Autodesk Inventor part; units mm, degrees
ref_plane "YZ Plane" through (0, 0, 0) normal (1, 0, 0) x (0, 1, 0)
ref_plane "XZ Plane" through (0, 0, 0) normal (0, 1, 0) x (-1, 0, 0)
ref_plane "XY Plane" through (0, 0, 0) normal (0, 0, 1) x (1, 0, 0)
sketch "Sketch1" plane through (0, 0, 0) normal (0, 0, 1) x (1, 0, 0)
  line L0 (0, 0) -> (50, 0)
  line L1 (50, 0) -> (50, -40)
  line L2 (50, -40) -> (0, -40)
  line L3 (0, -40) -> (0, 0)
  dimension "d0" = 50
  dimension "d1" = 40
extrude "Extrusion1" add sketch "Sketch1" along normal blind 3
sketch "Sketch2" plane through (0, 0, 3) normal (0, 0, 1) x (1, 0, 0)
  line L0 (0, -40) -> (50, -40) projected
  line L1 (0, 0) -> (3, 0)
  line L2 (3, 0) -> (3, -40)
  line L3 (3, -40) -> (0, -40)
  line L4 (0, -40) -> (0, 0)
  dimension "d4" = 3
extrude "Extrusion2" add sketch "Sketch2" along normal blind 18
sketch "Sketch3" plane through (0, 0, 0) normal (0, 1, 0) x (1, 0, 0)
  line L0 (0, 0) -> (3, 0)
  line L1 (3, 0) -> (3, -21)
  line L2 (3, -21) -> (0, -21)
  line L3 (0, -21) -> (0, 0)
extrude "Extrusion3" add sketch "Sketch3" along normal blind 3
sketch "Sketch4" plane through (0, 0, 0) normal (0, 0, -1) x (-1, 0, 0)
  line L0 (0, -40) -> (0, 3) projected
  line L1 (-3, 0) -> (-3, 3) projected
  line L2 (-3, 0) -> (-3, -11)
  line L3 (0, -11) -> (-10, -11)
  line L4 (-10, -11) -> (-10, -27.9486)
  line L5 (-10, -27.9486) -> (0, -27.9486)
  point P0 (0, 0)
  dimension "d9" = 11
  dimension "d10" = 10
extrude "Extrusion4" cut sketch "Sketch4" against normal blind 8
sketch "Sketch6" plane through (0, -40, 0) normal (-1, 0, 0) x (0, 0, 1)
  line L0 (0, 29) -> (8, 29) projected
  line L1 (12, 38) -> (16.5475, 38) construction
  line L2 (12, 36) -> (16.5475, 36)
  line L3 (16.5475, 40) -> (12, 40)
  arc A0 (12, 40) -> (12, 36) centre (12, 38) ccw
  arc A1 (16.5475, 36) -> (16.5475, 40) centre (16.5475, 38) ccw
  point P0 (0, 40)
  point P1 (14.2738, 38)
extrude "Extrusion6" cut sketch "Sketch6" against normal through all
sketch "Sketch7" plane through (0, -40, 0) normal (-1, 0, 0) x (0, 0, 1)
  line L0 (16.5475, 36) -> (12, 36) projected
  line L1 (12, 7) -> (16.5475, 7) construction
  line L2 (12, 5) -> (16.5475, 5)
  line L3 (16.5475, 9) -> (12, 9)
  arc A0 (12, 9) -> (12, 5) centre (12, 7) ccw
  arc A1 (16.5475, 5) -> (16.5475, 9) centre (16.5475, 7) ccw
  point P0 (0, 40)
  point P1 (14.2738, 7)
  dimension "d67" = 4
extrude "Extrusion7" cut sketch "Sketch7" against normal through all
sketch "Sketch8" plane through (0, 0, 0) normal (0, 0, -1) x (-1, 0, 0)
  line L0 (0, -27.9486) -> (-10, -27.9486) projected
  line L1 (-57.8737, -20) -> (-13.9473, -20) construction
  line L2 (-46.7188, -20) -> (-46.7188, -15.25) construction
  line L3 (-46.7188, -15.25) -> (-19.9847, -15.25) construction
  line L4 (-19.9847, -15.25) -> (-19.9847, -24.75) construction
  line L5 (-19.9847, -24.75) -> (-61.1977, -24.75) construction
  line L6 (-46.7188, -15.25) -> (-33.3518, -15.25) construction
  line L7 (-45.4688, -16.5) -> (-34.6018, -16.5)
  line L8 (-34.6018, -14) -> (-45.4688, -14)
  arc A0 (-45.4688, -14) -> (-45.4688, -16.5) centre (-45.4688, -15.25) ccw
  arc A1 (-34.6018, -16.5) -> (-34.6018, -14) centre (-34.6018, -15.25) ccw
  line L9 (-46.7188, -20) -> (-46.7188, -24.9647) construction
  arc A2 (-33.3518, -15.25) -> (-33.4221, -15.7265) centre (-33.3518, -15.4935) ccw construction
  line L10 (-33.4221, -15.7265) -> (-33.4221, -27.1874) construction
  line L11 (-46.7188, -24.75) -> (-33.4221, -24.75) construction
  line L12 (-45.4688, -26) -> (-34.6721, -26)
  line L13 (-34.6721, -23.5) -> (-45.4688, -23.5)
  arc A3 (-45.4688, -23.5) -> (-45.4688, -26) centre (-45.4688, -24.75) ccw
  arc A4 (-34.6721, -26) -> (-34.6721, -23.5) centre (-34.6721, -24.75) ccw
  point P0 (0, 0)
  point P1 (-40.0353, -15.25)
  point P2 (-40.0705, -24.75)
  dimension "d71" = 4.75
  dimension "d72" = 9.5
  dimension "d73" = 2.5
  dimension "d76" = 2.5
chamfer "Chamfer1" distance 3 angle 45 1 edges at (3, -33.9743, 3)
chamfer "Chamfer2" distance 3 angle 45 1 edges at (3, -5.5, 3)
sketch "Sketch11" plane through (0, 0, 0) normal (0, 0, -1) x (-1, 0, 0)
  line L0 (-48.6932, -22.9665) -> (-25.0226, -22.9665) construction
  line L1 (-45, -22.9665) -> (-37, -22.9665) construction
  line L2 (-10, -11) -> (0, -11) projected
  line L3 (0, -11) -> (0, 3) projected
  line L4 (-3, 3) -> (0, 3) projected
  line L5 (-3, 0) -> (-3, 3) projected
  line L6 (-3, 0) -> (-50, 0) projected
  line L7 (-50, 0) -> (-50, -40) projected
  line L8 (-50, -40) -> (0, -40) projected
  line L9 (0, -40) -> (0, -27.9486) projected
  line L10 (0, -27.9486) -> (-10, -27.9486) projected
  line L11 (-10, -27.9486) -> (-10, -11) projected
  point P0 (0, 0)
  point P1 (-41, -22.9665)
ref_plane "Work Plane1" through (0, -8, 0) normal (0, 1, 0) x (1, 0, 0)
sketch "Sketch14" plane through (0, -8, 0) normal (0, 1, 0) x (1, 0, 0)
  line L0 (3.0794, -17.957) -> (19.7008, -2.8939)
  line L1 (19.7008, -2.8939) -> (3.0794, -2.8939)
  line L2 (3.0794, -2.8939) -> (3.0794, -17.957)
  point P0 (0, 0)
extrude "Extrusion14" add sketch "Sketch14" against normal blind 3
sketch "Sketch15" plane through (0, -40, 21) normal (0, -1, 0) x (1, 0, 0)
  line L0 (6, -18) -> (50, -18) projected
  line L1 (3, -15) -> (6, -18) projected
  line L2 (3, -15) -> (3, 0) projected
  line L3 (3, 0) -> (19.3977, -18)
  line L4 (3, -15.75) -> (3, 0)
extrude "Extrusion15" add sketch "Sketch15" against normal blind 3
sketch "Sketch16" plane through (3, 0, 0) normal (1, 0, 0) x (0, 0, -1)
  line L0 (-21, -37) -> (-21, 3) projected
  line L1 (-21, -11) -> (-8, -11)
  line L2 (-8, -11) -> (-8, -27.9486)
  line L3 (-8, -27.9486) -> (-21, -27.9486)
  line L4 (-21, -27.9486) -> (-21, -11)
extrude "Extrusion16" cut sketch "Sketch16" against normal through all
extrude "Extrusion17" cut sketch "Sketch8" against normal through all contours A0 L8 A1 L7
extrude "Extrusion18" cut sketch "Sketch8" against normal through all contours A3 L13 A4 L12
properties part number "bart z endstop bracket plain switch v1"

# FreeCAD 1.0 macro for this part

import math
import FreeCAD as App
import Part
import Sketcher
from FreeCAD import Vector
Q = App.Units.Quantity


def edges_at(feature, points):
    """Names of the edges that pass closest to the given points."""
    edges = feature.Shape.Edges
    near = lambda p: min(range(len(edges)), key=lambda i: edges[i].distToShape(Part.Vertex(*p))[0])
    return sorted({f"Edge{near(p) + 1}" for p in points})


def add_polygon(sketch, points):
    """Adds a closed chain of lines whose ends are joined by coincident constraints."""
    first, n = sketch.GeometryCount, len(points)
    for a, b in zip(points, points[1:] + points[:1]):
        sketch.addGeometry(Part.LineSegment(App.Vector(*a, 0), App.Vector(*b, 0)), False)
    for i in range(n):
        sketch.addConstraint(Sketcher.Constraint("Coincident", first + i, 2, first + (i + 1) % n, 1))

doc = App.newDocument("Part")
body = doc.addObject("PartDesign::Body", "Body")

sketch1 = body.newObject("Sketcher::SketchObject", "Sketch")
sketch1.AttachmentSupport = (doc.getObject("XY_Plane"), [""])
sketch1.MapMode = "FlatFace"
add_polygon(sketch1, [(50, 0), (0, 0), (0, -40), (50, -40)])
sketch1.addConstraint([
    Sketcher.Constraint("Horizontal", 0),
    Sketcher.Constraint("Vertical", 1),
    Sketcher.Constraint("Horizontal", 2),
    Sketcher.Constraint("Vertical", 3),
    Sketcher.Constraint("Coincident", 0, 2, -1, 1),
    Sketcher.Constraint("DistanceX", 0, 2, 0, 1, 50.0),
    Sketcher.Constraint("DistanceY", 1, 2, 1, 1, 40.0),
])
pad1 = body.newObject("PartDesign::Pad", "Pad")
pad1.Profile = sketch1
pad1.Length = 3

sketch2 = body.newObject("Sketcher::SketchObject", "Sketch001")
sketch2.AttachmentSupport = (doc.getObject("XY_Plane"), [""])
sketch2.MapMode = "FlatFace"
sketch2.AttachmentOffset = App.Placement(Vector(0, 0, 3), App.Rotation())
add_polygon(sketch2, [(0, 0), (0, -40), (3, -40), (3, 0)])
sketch2.addConstraint([
    Sketcher.Constraint("Vertical", 0),
    Sketcher.Constraint("Horizontal", 1),
    Sketcher.Constraint("Vertical", 2),
    Sketcher.Constraint("Horizontal", 3),
    Sketcher.Constraint("Coincident", 3, 2, -1, 1),
    Sketcher.Constraint("DistanceX", 1, 1, 1, 2, 3.0),
    Sketcher.Constraint("DistanceY", 0, 2, 0, 1, 40.0),
])
pad2 = body.newObject("PartDesign::Pad", "Pad001")
pad2.Profile = sketch2
pad2.Length = 18

sketch3 = body.newObject("Sketcher::SketchObject", "Sketch002")
sketch3.AttachmentSupport = (doc.getObject("XZ_Plane"), [""])
sketch3.MapMode = "FlatFace"
add_polygon(sketch3, [(3, 0), (0, 0), (0, 21), (3, 21)])
sketch3.addConstraint([
    Sketcher.Constraint("Horizontal", 0),
    Sketcher.Constraint("Vertical", 1),
    Sketcher.Constraint("Horizontal", 2),
    Sketcher.Constraint("Vertical", 3),
    Sketcher.Constraint("Coincident", 0, 2, -1, 1),
    Sketcher.Constraint("DistanceX", 0, 2, 0, 1, 3.0),
    Sketcher.Constraint("DistanceY", 1, 1, 1, 2, 21.0),
])
pad3 = body.newObject("PartDesign::Pad", "Pad002")
pad3.Profile = sketch3
pad3.Length = 3
pad3.Reversed = True

sketch4 = body.newObject("Sketcher::SketchObject", "Sketch003")
sketch4.AttachmentSupport = (doc.getObject("XY_Plane"), [""])
sketch4.MapMode = "FlatFace"
add_polygon(sketch4, [(10, -28), (0, -28), (0, -11), (10, -11)])
sketch4.addConstraint([
    Sketcher.Constraint("Horizontal", 0),
    Sketcher.Constraint("Vertical", 1),
    Sketcher.Constraint("Horizontal", 2),
    Sketcher.Constraint("Vertical", 3),
    Sketcher.Constraint("PointOnObject", 0, 2, -2),
    Sketcher.Constraint("DistanceX", 0, 2, 0, 1, 10.0),
    Sketcher.Constraint("DistanceY", 1, 2, -1, 1, 11.0),
    Sketcher.Constraint("DistanceY", 1, 1, 1, 2, 16.9486),
])
pocket1 = body.newObject("PartDesign::Pocket", "Pocket")
pocket1.Profile = sketch4
pocket1.Length = 8
pocket1.Reversed = True

sketch5 = body.newObject("Sketcher::SketchObject", "Sketch004")
sketch5.AttachmentSupport = (doc.getObject("YZ_Plane"), [""])
sketch5.MapMode = "FlatFace"
sketch5.addGeometry([
    Part.ArcOfCircle(Part.Circle(Vector(-2, 12, 0), Vector(0, 0, 1), 2), math.radians(180), math.radians(360)),
    Part.LineSegment(Vector(-4, 12, 0), Vector(-4, 16.5, 0)),
    Part.ArcOfCircle(Part.Circle(Vector(-2, 16.5, 0), Vector(0, 0, 1), 2), math.radians(0), math.radians(180)),
    Part.LineSegment(Vector(0, 16.5, 0), Vector(0, 12, 0)),
], False)
sketch5.addConstraint([
    Sketcher.Constraint("Tangent", 0, 1, 1, 1),
    Sketcher.Constraint("Tangent", 1, 2, 2, 2),
    Sketcher.Constraint("Tangent", 2, 1, 3, 1),
    Sketcher.Constraint("Tangent", 3, 2, 0, 2),
    Sketcher.Constraint("Vertical", 1),
    Sketcher.Constraint("Vertical", 3),
    Sketcher.Constraint("PointOnObject", 2, 1, -2),
    Sketcher.Constraint("Radius", 0, 2.0),
    Sketcher.Constraint("DistanceY", -1, 1, 0, 3, 12.0),
    Sketcher.Constraint("DistanceY", 1, 1, 1, 2, 4.5475),
])
pocket2 = body.newObject("PartDesign::Pocket", "Pocket001")
pocket2.Profile = sketch5
pocket2.Type = "ThroughAll"
pocket2.Reversed = True

sketch6 = body.newObject("Sketcher::SketchObject", "Sketch005")
sketch6.AttachmentSupport = (doc.getObject("YZ_Plane"), [""])
sketch6.MapMode = "FlatFace"
sketch6.addGeometry([
    Part.ArcOfCircle(Part.Circle(Vector(-33, 12, 0), Vector(0, 0, 1), 2), math.radians(180), math.radians(360)),
    Part.LineSegment(Vector(-35, 12, 0), Vector(-35, 16.5, 0)),
    Part.ArcOfCircle(Part.Circle(Vector(-33, 16.5, 0), Vector(0, 0, 1), 2), math.radians(0), math.radians(180)),
    Part.LineSegment(Vector(-31, 16.5, 0), Vector(-31, 12, 0)),
], False)
sketch6.addConstraint([
    Sketcher.Constraint("Tangent", 0, 1, 1, 1),
    Sketcher.Constraint("Tangent", 1, 2, 2, 2),
    Sketcher.Constraint("Tangent", 2, 1, 3, 1),
    Sketcher.Constraint("Tangent", 3, 2, 0, 2),
    Sketcher.Constraint("Vertical", 1),
    Sketcher.Constraint("Vertical", 3),
    Sketcher.Constraint("Radius", 0, 2.0),
    Sketcher.Constraint("DistanceX", 0, 3, -1, 1, 33.0),
    Sketcher.Constraint("DistanceY", -1, 1, 0, 3, 12.0),
    Sketcher.Constraint("DistanceY", 1, 1, 1, 2, 4.5475),
])
pocket3 = body.newObject("PartDesign::Pocket", "Pocket002")
pocket3.Profile = sketch6
pocket3.Type = "ThroughAll"
pocket3.Reversed = True
doc.recompute()

chamfer = body.newObject("PartDesign::Chamfer", "Chamfer")
chamfer.Base = (pocket3, edges_at(pocket3, [(3, -33.974, 3)]))
chamfer.Size = 3
doc.recompute()

chamfer2 = body.newObject("PartDesign::Chamfer", "Chamfer001")
chamfer2.Base = (chamfer, edges_at(chamfer, [(3, -5.5, 3)]))
chamfer2.Size = 3

sketch7 = body.newObject("Sketcher::SketchObject", "Sketch006")
sketch7.AttachmentSupport = (doc.getObject("XZ_Plane"), [""])
sketch7.MapMode = "FlatFace"
sketch7.AttachmentOffset = App.Placement(Vector(0, 0, 8), App.Rotation())
add_polygon(sketch7, [(3, 3), (3, 18), (20, 3)])
sketch7.addConstraint([
    Sketcher.Constraint("Vertical", 0),
    Sketcher.Constraint("Horizontal", 2),
    Sketcher.Constraint("DistanceY", 0, 1, 0, 2, 15.063),
    Sketcher.Constraint("DistanceX", 2, 2, 2, 1, 16.6214),
    Sketcher.Constraint("DistanceY", -1, 1, 0, 2, 17.957),
    Sketcher.Constraint("DistanceX", -1, 1, 0, 2, 3.0794),
])
pad4 = body.newObject("PartDesign::Pad", "Pad003")
pad4.Profile = sketch7
pad4.Length = 3

sketch8 = body.newObject("Sketcher::SketchObject", "Sketch007")
sketch8.AttachmentSupport = (doc.getObject("XZ_Plane"), [""])
sketch8.MapMode = "FlatFace"
sketch8.AttachmentOffset = App.Placement(Vector(0, 0, 40), App.Rotation())
add_polygon(sketch8, [(3, 6), (6, 3), (19.4, 3), (3, 21)])
sketch8.addConstraint([
    Sketcher.Constraint("Horizontal", 1),
    Sketcher.Constraint("Vertical", 3),
    Sketcher.Constraint("DistanceY", 3, 2, 3, 1, 15.0),
    Sketcher.Constraint("Angle", 0, Q("-45 deg")),
    Sketcher.Constraint("DistanceX", -1, 1, 0, 2, 6.0),
    Sketcher.Constraint("DistanceY", -1, 1, 0, 2, 3.0),
    Sketcher.Constraint("DistanceX", -1, 1, 2, 2, 3.0),
    Sketcher.Constraint("DistanceX", 1, 1, 1, 2, 13.3977),
])
pad5 = body.newObject("PartDesign::Pad", "Pad004")
pad5.Profile = sketch8
pad5.Length = 3
pad5.Reversed = True

sketch9 = body.newObject("Sketcher::SketchObject", "Sketch008")
sketch9.AttachmentSupport = (doc.getObject("YZ_Plane"), [""])
sketch9.MapMode = "FlatFace"
sketch9.AttachmentOffset = App.Placement(Vector(0, 0, 3), App.Rotation())
add_polygon(sketch9, [(-11, 21), (-28, 21), (-28, 8), (-11, 8)])
sketch9.addConstraint([
    Sketcher.Constraint("Horizontal", 0),
    Sketcher.Constraint("Vertical", 1),
    Sketcher.Constraint("Horizontal", 2),
    Sketcher.Constraint("Vertical", 3),
    Sketcher.Constraint("DistanceY", 1, 2, 1, 1, 13.0),
    Sketcher.Constraint("DistanceY", -1, 1, 0, 2, 21.0),
    Sketcher.Constraint("DistanceX", 2, 2, -1, 1, 11.0),
    Sketcher.Constraint("DistanceX", 0, 2, 0, 1, 16.9486),
])
pocket4 = body.newObject("PartDesign::Pocket", "Pocket003")
pocket4.Profile = sketch9
pocket4.Type = "ThroughAll"

sketch10 = body.newObject("Sketcher::SketchObject", "Sketch009")
sketch10.AttachmentSupport = (doc.getObject("XY_Plane"), [""])
sketch10.MapMode = "FlatFace"
sketch10.addGeometry([
    Part.ArcOfCircle(Part.Circle(Vector(45.5, -15.2, 0), Vector(0, 0, 1), 1.2), math.radians(-90), math.radians(90)),
    Part.LineSegment(Vector(45.5, -16.5, 0), Vector(34.6, -16.5, 0)),
    Part.ArcOfCircle(Part.Circle(Vector(34.6, -15.2, 0), Vector(0, 0, 1), 1.2), math.radians(90), math.radians(270)),
    Part.LineSegment(Vector(34.6, -14, 0), Vector(45.5, -14, 0)),
], False)
sketch10.addConstraint([
    Sketcher.Constraint("Tangent", 0, 1, 1, 1),
    Sketcher.Constraint("Tangent", 1, 2, 2, 2),
    Sketcher.Constraint("Tangent", 2, 1, 3, 1),
    Sketcher.Constraint("Tangent", 3, 2, 0, 2),
    Sketcher.Constraint("Horizontal", 1),
    Sketcher.Constraint("Horizontal", 3),
    Sketcher.Constraint("Radius", 0, 1.25),
    Sketcher.Constraint("DistanceY", 2, 1, -1, 1, 14.0),
    Sketcher.Constraint("DistanceX", 1, 2, 1, 1, 10.867),
    Sketcher.Constraint("DistanceX", -1, 1, 0, 3, 45.4688),
])
pocket5 = body.newObject("PartDesign::Pocket", "Pocket004")
pocket5.Profile = sketch10
pocket5.Type = "ThroughAll"
pocket5.Reversed = True

sketch11 = body.newObject("Sketcher::SketchObject", "Sketch010")
sketch11.AttachmentSupport = (doc.getObject("XY_Plane"), [""])
sketch11.MapMode = "FlatFace"
sketch11.addGeometry([
    Part.ArcOfCircle(Part.Circle(Vector(45.5, -24.8, 0), Vector(0, 0, 1), 1.2), math.radians(-90), math.radians(90)),
    Part.LineSegment(Vector(45.5, -26, 0), Vector(34.7, -26, 0)),
    Part.ArcOfCircle(Part.Circle(Vector(34.7, -24.8, 0), Vector(0, 0, 1), 1.2), math.radians(90), math.radians(270)),
    Part.LineSegment(Vector(34.7, -23.5, 0), Vector(45.5, -23.5, 0)),
], False)
sketch11.addConstraint([
    Sketcher.Constraint("Tangent", 0, 1, 1, 1),
    Sketcher.Constraint("Tangent", 1, 2, 2, 2),
    Sketcher.Constraint("Tangent", 2, 1, 3, 1),
    Sketcher.Constraint("Tangent", 3, 2, 0, 2),
    Sketcher.Constraint("Horizontal", 1),
    Sketcher.Constraint("Horizontal", 3),
    Sketcher.Constraint("Radius", 0, 1.25),
    Sketcher.Constraint("DistanceY", 0, 1, -1, 1, 26.0),
    Sketcher.Constraint("DistanceX", 1, 2, 1, 1, 10.7967),
    Sketcher.Constraint("DistanceX", -1, 1, 2, 3, 34.672),
])
pocket6 = body.newObject("PartDesign::Pocket", "Pocket005")
pocket6.Profile = sketch11
pocket6.Type = "ThroughAll"
pocket6.Reversed = True

doc.recompute()
